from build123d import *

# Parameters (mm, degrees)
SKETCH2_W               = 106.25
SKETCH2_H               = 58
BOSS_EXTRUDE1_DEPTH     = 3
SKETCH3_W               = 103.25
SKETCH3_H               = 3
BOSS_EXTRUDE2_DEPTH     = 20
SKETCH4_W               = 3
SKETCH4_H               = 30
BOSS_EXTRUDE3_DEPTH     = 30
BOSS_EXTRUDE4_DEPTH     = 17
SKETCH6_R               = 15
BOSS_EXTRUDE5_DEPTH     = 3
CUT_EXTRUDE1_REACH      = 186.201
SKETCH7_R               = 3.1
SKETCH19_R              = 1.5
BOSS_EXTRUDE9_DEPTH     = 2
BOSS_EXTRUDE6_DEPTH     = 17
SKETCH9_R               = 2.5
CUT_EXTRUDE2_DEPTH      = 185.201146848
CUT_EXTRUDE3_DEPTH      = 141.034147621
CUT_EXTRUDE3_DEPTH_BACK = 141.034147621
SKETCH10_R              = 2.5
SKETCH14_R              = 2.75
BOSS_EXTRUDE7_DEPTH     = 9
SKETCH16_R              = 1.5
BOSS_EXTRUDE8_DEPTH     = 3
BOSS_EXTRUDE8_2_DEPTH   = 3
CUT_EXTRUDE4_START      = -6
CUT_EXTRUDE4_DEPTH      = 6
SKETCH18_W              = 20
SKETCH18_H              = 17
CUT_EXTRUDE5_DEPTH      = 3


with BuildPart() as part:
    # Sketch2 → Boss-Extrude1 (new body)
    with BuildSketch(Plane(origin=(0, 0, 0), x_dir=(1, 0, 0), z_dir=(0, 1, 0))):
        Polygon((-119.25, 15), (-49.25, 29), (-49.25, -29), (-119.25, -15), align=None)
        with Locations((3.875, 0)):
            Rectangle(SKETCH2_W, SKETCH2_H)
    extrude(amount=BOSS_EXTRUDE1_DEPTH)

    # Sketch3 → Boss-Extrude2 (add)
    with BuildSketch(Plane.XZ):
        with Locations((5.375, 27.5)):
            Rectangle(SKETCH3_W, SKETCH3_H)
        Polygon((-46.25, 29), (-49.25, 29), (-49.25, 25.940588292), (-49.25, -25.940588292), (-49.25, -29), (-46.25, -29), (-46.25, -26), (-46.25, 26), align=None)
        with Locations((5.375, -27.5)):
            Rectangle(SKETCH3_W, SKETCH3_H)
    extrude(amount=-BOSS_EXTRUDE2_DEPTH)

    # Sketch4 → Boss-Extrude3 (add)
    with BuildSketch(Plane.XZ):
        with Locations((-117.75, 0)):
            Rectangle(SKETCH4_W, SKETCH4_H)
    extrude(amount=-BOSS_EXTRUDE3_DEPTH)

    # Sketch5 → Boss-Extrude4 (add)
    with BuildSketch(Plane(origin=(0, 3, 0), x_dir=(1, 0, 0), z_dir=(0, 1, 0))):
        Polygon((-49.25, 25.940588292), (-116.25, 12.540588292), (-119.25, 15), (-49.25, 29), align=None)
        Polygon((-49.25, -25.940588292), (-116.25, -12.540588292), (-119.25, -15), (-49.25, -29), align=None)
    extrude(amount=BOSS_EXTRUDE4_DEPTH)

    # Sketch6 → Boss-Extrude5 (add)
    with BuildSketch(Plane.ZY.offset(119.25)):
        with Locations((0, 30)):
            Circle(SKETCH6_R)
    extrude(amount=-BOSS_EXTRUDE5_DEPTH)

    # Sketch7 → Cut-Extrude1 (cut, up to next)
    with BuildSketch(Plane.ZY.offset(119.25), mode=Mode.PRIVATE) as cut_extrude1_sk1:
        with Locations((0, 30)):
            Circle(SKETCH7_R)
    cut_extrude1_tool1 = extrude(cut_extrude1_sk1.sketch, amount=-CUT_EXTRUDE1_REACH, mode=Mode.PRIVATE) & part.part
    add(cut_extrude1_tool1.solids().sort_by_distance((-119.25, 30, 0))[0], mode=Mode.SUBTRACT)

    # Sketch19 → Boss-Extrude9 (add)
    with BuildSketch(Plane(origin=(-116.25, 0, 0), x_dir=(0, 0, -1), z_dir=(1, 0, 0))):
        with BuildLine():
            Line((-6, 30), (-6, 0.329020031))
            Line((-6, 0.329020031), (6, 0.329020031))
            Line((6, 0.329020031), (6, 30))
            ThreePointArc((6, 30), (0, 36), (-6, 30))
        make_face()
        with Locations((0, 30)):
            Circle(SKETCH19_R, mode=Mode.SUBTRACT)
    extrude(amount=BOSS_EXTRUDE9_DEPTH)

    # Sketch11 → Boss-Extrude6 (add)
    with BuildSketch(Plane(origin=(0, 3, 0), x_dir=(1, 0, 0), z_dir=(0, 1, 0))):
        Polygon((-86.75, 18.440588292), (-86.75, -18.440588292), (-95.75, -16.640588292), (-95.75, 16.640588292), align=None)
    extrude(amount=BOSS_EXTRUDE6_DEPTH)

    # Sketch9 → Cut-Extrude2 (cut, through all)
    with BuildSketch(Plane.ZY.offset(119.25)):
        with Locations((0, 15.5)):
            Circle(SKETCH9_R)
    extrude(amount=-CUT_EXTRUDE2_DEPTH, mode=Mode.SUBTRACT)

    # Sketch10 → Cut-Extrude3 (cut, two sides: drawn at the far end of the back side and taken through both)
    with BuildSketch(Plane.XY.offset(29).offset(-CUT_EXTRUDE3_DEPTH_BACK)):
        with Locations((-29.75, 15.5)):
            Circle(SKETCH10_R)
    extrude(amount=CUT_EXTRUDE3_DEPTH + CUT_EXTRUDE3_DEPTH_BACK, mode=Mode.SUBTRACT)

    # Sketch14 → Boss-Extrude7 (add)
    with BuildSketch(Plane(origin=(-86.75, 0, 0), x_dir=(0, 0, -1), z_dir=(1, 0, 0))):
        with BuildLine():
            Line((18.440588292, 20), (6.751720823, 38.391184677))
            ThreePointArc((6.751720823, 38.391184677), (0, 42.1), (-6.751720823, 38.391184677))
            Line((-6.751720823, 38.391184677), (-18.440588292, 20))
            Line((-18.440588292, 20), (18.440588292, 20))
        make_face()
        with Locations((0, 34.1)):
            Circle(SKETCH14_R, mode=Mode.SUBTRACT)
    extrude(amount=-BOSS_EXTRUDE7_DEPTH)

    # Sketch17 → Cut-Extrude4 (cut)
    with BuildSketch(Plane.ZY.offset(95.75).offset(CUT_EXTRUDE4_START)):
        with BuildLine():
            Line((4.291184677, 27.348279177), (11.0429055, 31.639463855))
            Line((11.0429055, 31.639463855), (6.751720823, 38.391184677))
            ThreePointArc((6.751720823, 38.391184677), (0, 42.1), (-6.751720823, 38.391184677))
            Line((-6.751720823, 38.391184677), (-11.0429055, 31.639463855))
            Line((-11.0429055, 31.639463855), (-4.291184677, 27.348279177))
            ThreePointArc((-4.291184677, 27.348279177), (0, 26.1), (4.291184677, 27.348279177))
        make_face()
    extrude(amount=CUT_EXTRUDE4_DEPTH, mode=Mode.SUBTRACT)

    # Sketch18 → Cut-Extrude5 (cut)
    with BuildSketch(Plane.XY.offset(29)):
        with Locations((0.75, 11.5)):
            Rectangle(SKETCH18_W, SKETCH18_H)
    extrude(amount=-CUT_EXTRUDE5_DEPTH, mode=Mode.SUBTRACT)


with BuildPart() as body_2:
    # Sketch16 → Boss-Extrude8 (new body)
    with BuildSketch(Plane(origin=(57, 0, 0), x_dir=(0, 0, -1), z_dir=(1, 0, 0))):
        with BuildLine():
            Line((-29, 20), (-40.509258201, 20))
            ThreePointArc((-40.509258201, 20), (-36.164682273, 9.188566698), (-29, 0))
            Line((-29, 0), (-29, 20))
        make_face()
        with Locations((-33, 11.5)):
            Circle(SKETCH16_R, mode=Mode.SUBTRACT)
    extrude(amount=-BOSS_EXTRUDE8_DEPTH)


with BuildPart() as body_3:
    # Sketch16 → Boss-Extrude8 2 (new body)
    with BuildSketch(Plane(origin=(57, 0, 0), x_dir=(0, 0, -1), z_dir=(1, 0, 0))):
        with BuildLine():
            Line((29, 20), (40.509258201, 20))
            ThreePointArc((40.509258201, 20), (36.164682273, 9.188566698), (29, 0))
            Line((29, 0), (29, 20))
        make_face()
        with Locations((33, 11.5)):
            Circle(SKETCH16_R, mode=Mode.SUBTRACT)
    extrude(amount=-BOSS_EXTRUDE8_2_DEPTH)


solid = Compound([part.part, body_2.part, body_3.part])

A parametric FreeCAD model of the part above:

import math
import FreeCAD as App
import Part
import Sketcher

V = App.Vector

doc = App.newDocument("Part")
body = doc.addObject("PartDesign::Body", "Body")

sketch1 = body.newObject("Sketcher::SketchObject", "Sketch")
sketch1.AttachmentSupport = (doc.getObject("XZ_Plane"), [""])
sketch1.MapMode = "FlatFace"
sketch1.addGeometry([
    Part.LineSegment(V(-49.25, -29, 0), V(-119.25, -15, 0)),
    Part.LineSegment(V(-119.25, -15, 0), V(-119.25, 15, 0)),
    Part.LineSegment(V(-119.25, 15, 0), V(-49.25, 29, 0)),
    Part.LineSegment(V(-49.25, 29, 0), V(57, 29, 0)),
    Part.LineSegment(V(57, 29, 0), V(57, -29, 0)),
    Part.LineSegment(V(57, -29, 0), V(-49.25, -29, 0)),
], False)
sketch1.addConstraint([
    Sketcher.Constraint("Coincident", 0, 2, 1, 1),
    Sketcher.Constraint("Coincident", 1, 2, 2, 1),
    Sketcher.Constraint("Coincident", 2, 2, 3, 1),
    Sketcher.Constraint("Coincident", 3, 2, 4, 1),
    Sketcher.Constraint("Coincident", 4, 2, 5, 1),
    Sketcher.Constraint("Coincident", 5, 2, 0, 1),
    Sketcher.Constraint("Vertical", 1),
    Sketcher.Constraint("Horizontal", 3),
    Sketcher.Constraint("Vertical", 4),
    Sketcher.Constraint("Horizontal", 5),
    Sketcher.Constraint("Symmetric", 2, 2, 5, 2, -1),
    Sketcher.Constraint("Equal", 0, 2),
    Sketcher.Constraint("DistanceY", 1, 1, 1, 2, 30.0),
    Sketcher.Constraint("DistanceY", 4, 2, 4, 1, 58.0),
    Sketcher.Constraint("DistanceX", -1, 1, 3, 2, 57.0),
    Sketcher.Constraint("DistanceX", 1, 2, 2, 2, 70.0),
    Sketcher.Constraint("DistanceX", 3, 1, 3, 2, 106.25),
])
pad1 = body.newObject("PartDesign::Pad", "Pad")
pad1.Profile = sketch1
pad1.Length = 3
pad1.Reversed = True

sketch2 = body.newObject("Sketcher::SketchObject", "Sketch001")
sketch2.AttachmentSupport = (doc.getObject("XZ_Plane"), [""])
sketch2.MapMode = "FlatFace"
sketch2.addGeometry([
    Part.LineSegment(V(-46.25, 26, 0), V(57, 26, 0)),
    Part.LineSegment(V(57, 26, 0), V(57, 29, 0)),
    Part.LineSegment(V(57, 29, 0), V(-49.25, 29, 0)),
    Part.LineSegment(V(-49.25, 29, 0), V(-49.25, -29, 0)),
    Part.LineSegment(V(-49.25, -29, 0), V(57, -29, 0)),
    Part.LineSegment(V(57, -29, 0), V(57, -26, 0)),
    Part.LineSegment(V(57, -26, 0), V(-46.25, -26, 0)),
    Part.LineSegment(V(-46.25, -26, 0), V(-46.25, 26, 0)),
], False)
sketch2.addConstraint([
    Sketcher.Constraint("Coincident", 0, 2, 1, 1),
    Sketcher.Constraint("Coincident", 1, 2, 2, 1),
    Sketcher.Constraint("Coincident", 2, 2, 3, 1),
    Sketcher.Constraint("Coincident", 3, 2, 4, 1),
    Sketcher.Constraint("Coincident", 4, 2, 5, 1),
    Sketcher.Constraint("Coincident", 5, 2, 6, 1),
    Sketcher.Constraint("Coincident", 6, 2, 7, 1),
    Sketcher.Constraint("Coincident", 7, 2, 0, 1),
    Sketcher.Constraint("Horizontal", 0),
    Sketcher.Constraint("Vertical", 1),
    Sketcher.Constraint("Horizontal", 2),
    Sketcher.Constraint("Vertical", 3),
    Sketcher.Constraint("Horizontal", 4),
    Sketcher.Constraint("Vertical", 5),
    Sketcher.Constraint("Horizontal", 6),
    Sketcher.Constraint("Vertical", 7),
    Sketcher.Constraint("Symmetric", 1, 2, 4, 2, -1),
    Sketcher.Constraint("Equal", 1, 5),
    Sketcher.Constraint("DistanceY", 1, 1, 1, 2, 3.0),
    Sketcher.Constraint("DistanceY", 3, 2, 3, 1, 58.0),
    Sketcher.Constraint("DistanceX", -1, 1, 0, 2, 57.0),
    Sketcher.Constraint("DistanceX", 3, 2, 6, 2, 3.0),
    Sketcher.Constraint("DistanceX", 0, 1, 0, 2, 103.25),
])
pad2 = body.newObject("PartDesign::Pad", "Pad001")
pad2.Profile = sketch2
pad2.Length = 20
pad2.Reversed = True

sketch3 = body.newObject("Sketcher::SketchObject", "Sketch002")
sketch3.AttachmentSupport = (doc.getObject("XZ_Plane"), [""])
sketch3.MapMode = "FlatFace"
sketch3.addGeometry([
    Part.LineSegment(V(-119.25, 15, 0), V(-119.25, -15, 0)),
    Part.LineSegment(V(-119.25, -15, 0), V(-116.25, -15, 0)),
    Part.LineSegment(V(-116.25, -15, 0), V(-116.25, 15, 0)),
    Part.LineSegment(V(-116.25, 15, 0), V(-119.25, 15, 0)),
], False)
sketch3.addConstraint([
    Sketcher.Constraint("Coincident", 0, 2, 1, 1),
    Sketcher.Constraint("Coincident", 1, 2, 2, 1),
    Sketcher.Constraint("Coincident", 2, 2, 3, 1),
    Sketcher.Constraint("Coincident", 3, 2, 0, 1),
    Sketcher.Constraint("Vertical", 0),
    Sketcher.Constraint("Horizontal", 1),
    Sketcher.Constraint("Vertical", 2),
    Sketcher.Constraint("Horizontal", 3),
    Sketcher.Constraint("DistanceX", 1, 1, 1, 2, 3.0),
    Sketcher.Constraint("DistanceY", 0, 2, 0, 1, 30.0),
    Sketcher.Constraint("DistanceY", 0, 2, -1, 1, 15.0),
    Sketcher.Constraint("DistanceX", 0, 2, -1, 1, 119.25),
])
pad3 = body.newObject("PartDesign::Pad", "Pad002")
pad3.Profile = sketch3
pad3.Length = 30
pad3.Reversed = True

sketch4 = body.newObject("Sketcher::SketchObject", "Sketch003")
sketch4.AttachmentSupport = (doc.getObject("XZ_Plane"), [""])
sketch4.MapMode = "FlatFace"
sketch4.AttachmentOffset = App.Placement(V(0, 0, -3), App.Rotation())
sketch4.addGeometry([
    Part.LineSegment(V(-116.25, -12.540588, 0), V(-49.25, -25.940588, 0)),
    Part.LineSegment(V(-49.25, -25.940588, 0), V(-49.25, -29, 0)),
    Part.LineSegment(V(-49.25, -29, 0), V(-119.25, -15, 0)),
    Part.LineSegment(V(-119.25, -15, 0), V(-116.25, -12.540588, 0)),
    Part.LineSegment(V(-49.25, 25.940588, 0), V(-116.25, 12.540588, 0)),
    Part.LineSegment(V(-116.25, 12.540588, 0), V(-119.25, 15, 0)),
    Part.LineSegment(V(-119.25, 15, 0), V(-49.25, 29, 0)),
    Part.LineSegment(V(-49.25, 29, 0), V(-49.25, 25.940588, 0)),
], False)
sketch4.addConstraint([
    Sketcher.Constraint("Coincident", 0, 2, 1, 1),
    Sketcher.Constraint("Coincident", 1, 2, 2, 1),
    Sketcher.Constraint("Coincident", 2, 2, 3, 1),
    Sketcher.Constraint("Coincident", 3, 2, 0, 1),
    Sketcher.Constraint("Coincident", 4, 2, 5, 1),
    Sketcher.Constraint("Coincident", 5, 2, 6, 1),
    Sketcher.Constraint("Coincident", 6, 2, 7, 1),
    Sketcher.Constraint("Coincident", 7, 2, 4, 1),
    Sketcher.Constraint("Vertical", 1),
    Sketcher.Constraint("Vertical", 7),
    Sketcher.Constraint("Symmetric", 3, 2, 4, 2, -1),
    Sketcher.Constraint("Symmetric", 2, 2, 5, 2, -1),
    Sketcher.Constraint("Symmetric", 1, 2, 6, 2, -1),
    Sketcher.Constraint("Parallel", 0, 2),
    Sketcher.Constraint("Parallel", 4, 6),
    Sketcher.Constraint("DistanceY", 1, 2, -1, 1, 29.0),
    Sketcher.Constraint("DistanceY", 2, 2, -1, 1, 15.0),
    Sketcher.Constraint("DistanceX", 2, 2, 0, 2, 70.0),
    Sketcher.Constraint("DistanceX", 2, 2, 3, 2, 3.0),
    Sketcher.Constraint("DistanceX", 0, 2, -1, 1, 49.25),
    Sketcher.Constraint("DistanceY", 1, 2, 1, 1, 3.059412),
])
pad4 = body.newObject("PartDesign::Pad", "Pad003")
pad4.Profile = sketch4
pad4.Length = 17
pad4.Reversed = True

sketch5 = body.newObject("Sketcher::SketchObject", "Sketch004")
sketch5.AttachmentSupport = (doc.getObject("YZ_Plane"), [""])
sketch5.MapMode = "FlatFace"
sketch5.AttachmentOffset = App.Placement(V(0, 0, -119.25), App.Rotation())
sketch5.addGeometry(Part.Circle(V(30, 0, 0), V(0, 0, 1), 15), False)
sketch5.addConstraint([
    Sketcher.Constraint("PointOnObject", 0, 3, -1),
    Sketcher.Constraint("Diameter", 0, 30.0),
    Sketcher.Constraint("DistanceX", -1, 1, 0, 3, 30.0),
])
pad5 = body.newObject("PartDesign::Pad", "Pad004")
pad5.Profile = sketch5
pad5.Length = 3

sketch6 = body.newObject("Sketcher::SketchObject", "Sketch005")
sketch6.AttachmentSupport = (doc.getObject("YZ_Plane"), [""])
sketch6.MapMode = "FlatFace"
sketch6.AttachmentOffset = App.Placement(V(0, 0, -119.25), App.Rotation())
sketch6.addGeometry(Part.Circle(V(30, 0, 0), V(0, 0, 1), 3.1), False)
sketch6.addConstraint([
    Sketcher.Constraint("PointOnObject", 0, 3, -1),
    Sketcher.Constraint("Diameter", 0, 6.2),
    Sketcher.Constraint("DistanceX", -1, 1, 0, 3, 30.0),
])
pocket1 = body.newObject("PartDesign::Pocket", "Pocket")
pocket1.Profile = sketch6
pocket1.Type = "UpToFirst"
pocket1.Reversed = True

sketch7 = body.newObject("Sketcher::SketchObject", "Sketch006")
sketch7.AttachmentSupport = (doc.getObject("YZ_Plane"), [""])
sketch7.MapMode = "FlatFace"
sketch7.AttachmentOffset = App.Placement(V(0, 0, -116.25), App.Rotation())
sketch7.addGeometry([
    Part.LineSegment(V(30, 6, 0), V(0.32902, 6, 0)),
    Part.LineSegment(V(0.32902, 6, 0), V(0.32902, -6, 0)),
    Part.LineSegment(V(0.32902, -6, 0), V(30, -6, 0)),
    Part.ArcOfCircle(Part.Circle(V(30, 0, 0), V(0, 0, 1), 6), math.radians(-90), math.radians(90)),
    Part.Circle(V(30, 0, 0), V(0, 0, 1), 1.5),
], False)
sketch7.addConstraint([
    Sketcher.Constraint("Coincident", 0, 2, 1, 1),
    Sketcher.Constraint("Coincident", 1, 2, 2, 1),
    Sketcher.Constraint("Tangent", 2, 2, 3, 1),
    Sketcher.Constraint("Tangent", 3, 2, 0, 1),
    Sketcher.Constraint("Horizontal", 0),
    Sketcher.Constraint("Vertical", 1),
    Sketcher.Constraint("Horizontal", 2),
    Sketcher.Constraint("Coincident", 4, 3, 3, 3),
    Sketcher.Constraint("PointOnObject", 3, 3, -1),
    Sketcher.Constraint("Diameter", 4, 3.0),
    Sketcher.Constraint("Radius", 3, 6.0),
    Sketcher.Constraint("DistanceX", -1, 1, 3, 3, 30.0),
    Sketcher.Constraint("DistanceX", 0, 2, 0, 1, 29.67098),
])
pad6 = body.newObject("PartDesign::Pad", "Pad005")
pad6.Profile = sketch7
pad6.Length = 2

sketch8 = body.newObject("Sketcher::SketchObject", "Sketch007")
sketch8.AttachmentSupport = (doc.getObject("XZ_Plane"), [""])
sketch8.MapMode = "FlatFace"
sketch8.AttachmentOffset = App.Placement(V(0, 0, -3), App.Rotation())
sketch8.addGeometry([
    Part.LineSegment(V(-86.75, 18.440588, 0), V(-86.75, -18.440588, 0)),
    Part.LineSegment(V(-86.75, -18.440588, 0), V(-95.75, -16.640588, 0)),
    Part.LineSegment(V(-95.75, -16.640588, 0), V(-95.75, 16.640588, 0)),
    Part.LineSegment(V(-95.75, 16.640588, 0), V(-86.75, 18.440588, 0)),
], False)
sketch8.addConstraint([
    Sketcher.Constraint("Coincident", 0, 2, 1, 1),
    Sketcher.Constraint("Coincident", 1, 2, 2, 1),
    Sketcher.Constraint("Coincident", 2, 2, 3, 1),
    Sketcher.Constraint("Coincident", 3, 2, 0, 1),
    Sketcher.Constraint("Vertical", 0),
    Sketcher.Constraint("Vertical", 2),
    Sketcher.Constraint("Equal", 1, 3),
    Sketcher.Constraint("DistanceX", 1, 2, 0, 2, 9.0),
    Sketcher.Constraint("DistanceY", 0, 2, 1, 2, 1.8),
    Sketcher.Constraint("DistanceX", 0, 2, -1, 1, 86.75),
    Sketcher.Constraint("DistanceY", 0, 2, 0, 1, 36.881177),
    Sketcher.Constraint("DistanceY", 0, 2, -1, 1, 18.440588),
])
pad7 = body.newObject("PartDesign::Pad", "Pad006")
pad7.Profile = sketch8
pad7.Length = 17
pad7.Reversed = True

sketch9 = body.newObject("Sketcher::SketchObject", "Sketch008")
sketch9.AttachmentSupport = (doc.getObject("YZ_Plane"), [""])
sketch9.MapMode = "FlatFace"
sketch9.AttachmentOffset = App.Placement(V(0, 0, -119.25), App.Rotation())
sketch9.addGeometry(Part.Circle(V(15.5, 0, 0), V(0, 0, 1), 2.5), False)
sketch9.addConstraint([
    Sketcher.Constraint("PointOnObject", 0, 3, -1),
    Sketcher.Constraint("Diameter", 0, 5.0),
    Sketcher.Constraint("DistanceX", -1, 1, 0, 3, 15.5),
])
pocket2 = body.newObject("PartDesign::Pocket", "Pocket001")
pocket2.Profile = sketch9
pocket2.Type = "ThroughAll"
pocket2.Reversed = True

sketch10 = body.newObject("Sketcher::SketchObject", "Sketch009")
sketch10.AttachmentSupport = (doc.getObject("XY_Plane"), [""])
sketch10.MapMode = "FlatFace"
sketch10.AttachmentOffset = App.Placement(V(0, 0, 29), App.Rotation())
sketch10.addGeometry(Part.Circle(V(-29.75, 15.5, 0), V(0, 0, 1), 2.5), False)
sketch10.addConstraint([
    Sketcher.Constraint("Diameter", 0, 5.0),
    Sketcher.Constraint("DistanceY", -1, 1, 0, 3, 15.5),
    Sketcher.Constraint("DistanceX", 0, 3, -1, 1, 29.75),
])
pocket3 = body.newObject("PartDesign::Pocket", "Pocket002")
pocket3.Profile = sketch10
pocket3.Type = "ThroughAll"
pocket3.Midplane = True

sketch11 = body.newObject("Sketcher::SketchObject", "Sketch010")
sketch11.AttachmentSupport = (doc.getObject("YZ_Plane"), [""])
sketch11.MapMode = "FlatFace"
sketch11.AttachmentOffset = App.Placement(V(0, 0, -86.75), App.Rotation())
sketch11.addGeometry([
    Part.LineSegment(V(20, -18.440588, 0), V(38.391185, -6.751721, 0)),
    Part.ArcOfCircle(Part.Circle(V(34.1, 0, 0), V(0, 0, 1), 8), math.radians(-57.561224), math.radians(57.561224)),
    Part.LineSegment(V(38.391185, 6.751721, 0), V(20, 18.440588, 0)),
    Part.LineSegment(V(20, 18.440588, 0), V(20, -18.440588, 0)),
    Part.Circle(V(34.1, 0, 0), V(0, 0, 1), 2.75),
], False)
sketch11.addConstraint([
    Sketcher.Constraint("Tangent", 0, 2, 1, 1),
    Sketcher.Constraint("Tangent", 1, 2, 2, 1),
    Sketcher.Constraint("Coincident", 2, 2, 3, 1),
    Sketcher.Constraint("Coincident", 3, 2, 0, 1),
    Sketcher.Constraint("Vertical", 3),
    Sketcher.Constraint("Coincident", 4, 3, 1, 3),
    Sketcher.Constraint("Symmetric", 0, 2, 1, 2, -1),
    Sketcher.Constraint("Radius", 1, 8.0),
    Sketcher.Constraint("Diameter", 4, 5.5),
    Sketcher.Constraint("DistanceX", -1, 1, 2, 2, 20.0),
    Sketcher.Constraint("DistanceX", -1, 1, 1, 3, 34.1),
    Sketcher.Constraint("DistanceY", 3, 2, 3, 1, 36.881177),
])
pad8 = body.newObject("PartDesign::Pad", "Pad007")
pad8.Profile = sketch11
pad8.Length = 9
pad8.Reversed = True

sketch12 = body.newObject("Sketcher::SketchObject", "Sketch011")
sketch12.AttachmentSupport = (doc.getObject("YZ_Plane"), [""])
sketch12.MapMode = "FlatFace"
sketch12.AttachmentOffset = App.Placement(V(0, 0, -89.75), App.Rotation())
sketch12.addGeometry([
    Part.LineSegment(V(27.348279, 4.291185, 0), V(31.639464, 11.042905, 0)),
    Part.LineSegment(V(31.639464, 11.042905, 0), V(38.391185, 6.751721, 0)),
    Part.ArcOfCircle(Part.Circle(V(34.1, 0, 0), V(0, 0, 1), 8), math.radians(-57.561224), math.radians(57.561224)),
    Part.LineSegment(V(38.391185, -6.751721, 0), V(31.639464, -11.042905, 0)),
    Part.LineSegment(V(31.639464, -11.042905, 0), V(27.348279, -4.291185, 0)),
    Part.ArcOfCircle(Part.Circle(V(34.1, 0, 0), V(0, 0, 1), 8), math.radians(147.561224), math.radians(212.438776)),
], False)
sketch12.addConstraint([
    Sketcher.Constraint("Coincident", 0, 2, 1, 1),
    Sketcher.Constraint("Tangent", 1, 2, 2, 2),
    Sketcher.Constraint("Tangent", 2, 1, 3, 1),
    Sketcher.Constraint("Coincident", 3, 2, 4, 1),
    Sketcher.Constraint("Tangent", 4, 2, 5, 2),
    Sketcher.Constraint("Tangent", 5, 1, 0, 1),
    Sketcher.Constraint("Coincident", 5, 3, 2, 3),
    Sketcher.Constraint("Equal", 2, 5),
    Sketcher.Constraint("Symmetric", 1, 2, 2, 1, -1),
    Sketcher.Constraint("Perpendicular", 0, 1),
    Sketcher.Constraint("Perpendicular", 3, 4),
    Sketcher.Constraint("Radius", 2, 8.0),
    Sketcher.Constraint("DistanceX", -1, 1, 2, 3, 34.1),
    Sketcher.Constraint("DistanceY", -1, 1, 1, 2, 6.751721),
])
pocket4 = body.newObject("PartDesign::Pocket", "Pocket003")
pocket4.Profile = sketch12
pocket4.Length = 6

sketch13 = body.newObject("Sketcher::SketchObject", "Sketch012")
sketch13.AttachmentSupport = (doc.getObject("XY_Plane"), [""])
sketch13.MapMode = "FlatFace"
sketch13.AttachmentOffset = App.Placement(V(0, 0, 29), App.Rotation())
sketch13.addGeometry([
    Part.LineSegment(V(-9.25, 20, 0), V(-9.25, 3, 0)),
    Part.LineSegment(V(-9.25, 3, 0), V(10.75, 3, 0)),
    Part.LineSegment(V(10.75, 3, 0), V(10.75, 20, 0)),
    Part.LineSegment(V(10.75, 20, 0), V(-9.25, 20, 0)),
], False)
sketch13.addConstraint([
    Sketcher.Constraint("Coincident", 0, 2, 1, 1),
    Sketcher.Constraint("Coincident", 1, 2, 2, 1),
    Sketcher.Constraint("Coincident", 2, 2, 3, 1),
    Sketcher.Constraint("Coincident", 3, 2, 0, 1),
    Sketcher.Constraint("Vertical", 0),
    Sketcher.Constraint("Horizontal", 1),
    Sketcher.Constraint("Vertical", 2),
    Sketcher.Constraint("Horizontal", 3),
    Sketcher.Constraint("DistanceX", 1, 1, 1, 2, 20.0),
    Sketcher.Constraint("DistanceY", 0, 2, 0, 1, 17.0),
    Sketcher.Constraint("DistanceY", -1, 1, 0, 2, 3.0),
    Sketcher.Constraint("DistanceX", 0, 2, -1, 1, 9.25),
])
pocket5 = body.newObject("PartDesign::Pocket", "Pocket004")
pocket5.Profile = sketch13
pocket5.Length = 3
body2 = doc.addObject("PartDesign::Body", "Body001")

sketch14 = body2.newObject("Sketcher::SketchObject", "Sketch013")
sketch14.AttachmentSupport = (doc.getObject("YZ_Plane001"), [""])
sketch14.MapMode = "FlatFace"
sketch14.AttachmentOffset = App.Placement(V(0, 0, 57), App.Rotation())
sketch14.addGeometry([
    Part.LineSegment(V(20, 29, 0), V(20, 40.509258, 0)),
    Part.ArcOfCircle(Part.Circle(V(30, 0, 0), V(0, 0, 1), 41.725292), math.radians(103.866639), math.radians(135.971022)),
    Part.LineSegment(V(0, 29, 0), V(20, 29, 0)),
    Part.Circle(V(11.5, 33, 0), V(0, 0, 1), 1.5),
], False)
sketch14.addConstraint([
    Sketcher.Constraint("Coincident", 0, 2, 1, 1),
    Sketcher.Constraint("Coincident", 1, 2, 2, 1),
    Sketcher.Constraint("Coincident", 2, 2, 0, 1),
    Sketcher.Constraint("Vertical", 0),
    Sketcher.Constraint("Horizontal", 2),
    Sketcher.Constraint("PointOnObject", 1, 3, -1),
    Sketcher.Constraint("PointOnObject", 1, 2, -2),
    Sketcher.Constraint("Diameter", 3, 3.0),
    Sketcher.Constraint("DistanceX", 2, 1, 2, 2, 20.0),
    Sketcher.Constraint("DistanceX", -1, 1, 1, 3, 30.0),
    Sketcher.Constraint("DistanceY", -1, 1, 3, 3, 33.0),
    Sketcher.Constraint("DistanceY", -1, 1, 1, 2, 29.0),
    Sketcher.Constraint("DistanceX", -1, 1, 3, 3, 11.5),
])
pad9 = body2.newObject("PartDesign::Pad", "Pad008")
pad9.Profile = sketch14
pad9.Length = 3
pad9.Reversed = True
body3 = doc.addObject("PartDesign::Body", "Body002")

sketch15 = body3.newObject("Sketcher::SketchObject", "Sketch014")
sketch15.AttachmentSupport = (doc.getObject("YZ_Plane002"), [""])
sketch15.MapMode = "FlatFace"
sketch15.AttachmentOffset = App.Placement(V(0, 0, 57), App.Rotation())
sketch15.addGeometry([
    Part.LineSegment(V(20, -40.509258, 0), V(20, -29, 0)),
    Part.LineSegment(V(20, -29, 0), V(0, -29, 0)),
    Part.ArcOfCircle(Part.Circle(V(30, 0, 0), V(0, 0, 1), 41.725292), math.radians(-135.971022), math.radians(-103.866639)),
    Part.Circle(V(11.5, -33, 0), V(0, 0, 1), 1.5),
], False)
sketch15.addConstraint([
    Sketcher.Constraint("Coincident", 0, 2, 1, 1),
    Sketcher.Constraint("Coincident", 1, 2, 2, 1),
    Sketcher.Constraint("Coincident", 2, 2, 0, 1),
    Sketcher.Constraint("Vertical", 0),
    Sketcher.Constraint("Horizontal", 1),
    Sketcher.Constraint("PointOnObject", 2, 3, -1),
    Sketcher.Constraint("PointOnObject", 1, 2, -2),
    Sketcher.Constraint("Diameter", 3, 3.0),
    Sketcher.Constraint("DistanceX", 1, 2, 1, 1, 20.0),
    Sketcher.Constraint("DistanceX", -1, 1, 2, 3, 30.0),
    Sketcher.Constraint("DistanceY", 3, 3, -1, 1, 33.0),
    Sketcher.Constraint("DistanceY", 0, 2, -1, 1, 29.0),
    Sketcher.Constraint("DistanceX", -1, 1, 3, 3, 11.5),
])
pad10 = body3.newObject("PartDesign::Pad", "Pad009")
pad10.Profile = sketch15
pad10.Length = 3
pad10.Reversed = True

doc.recompute()
